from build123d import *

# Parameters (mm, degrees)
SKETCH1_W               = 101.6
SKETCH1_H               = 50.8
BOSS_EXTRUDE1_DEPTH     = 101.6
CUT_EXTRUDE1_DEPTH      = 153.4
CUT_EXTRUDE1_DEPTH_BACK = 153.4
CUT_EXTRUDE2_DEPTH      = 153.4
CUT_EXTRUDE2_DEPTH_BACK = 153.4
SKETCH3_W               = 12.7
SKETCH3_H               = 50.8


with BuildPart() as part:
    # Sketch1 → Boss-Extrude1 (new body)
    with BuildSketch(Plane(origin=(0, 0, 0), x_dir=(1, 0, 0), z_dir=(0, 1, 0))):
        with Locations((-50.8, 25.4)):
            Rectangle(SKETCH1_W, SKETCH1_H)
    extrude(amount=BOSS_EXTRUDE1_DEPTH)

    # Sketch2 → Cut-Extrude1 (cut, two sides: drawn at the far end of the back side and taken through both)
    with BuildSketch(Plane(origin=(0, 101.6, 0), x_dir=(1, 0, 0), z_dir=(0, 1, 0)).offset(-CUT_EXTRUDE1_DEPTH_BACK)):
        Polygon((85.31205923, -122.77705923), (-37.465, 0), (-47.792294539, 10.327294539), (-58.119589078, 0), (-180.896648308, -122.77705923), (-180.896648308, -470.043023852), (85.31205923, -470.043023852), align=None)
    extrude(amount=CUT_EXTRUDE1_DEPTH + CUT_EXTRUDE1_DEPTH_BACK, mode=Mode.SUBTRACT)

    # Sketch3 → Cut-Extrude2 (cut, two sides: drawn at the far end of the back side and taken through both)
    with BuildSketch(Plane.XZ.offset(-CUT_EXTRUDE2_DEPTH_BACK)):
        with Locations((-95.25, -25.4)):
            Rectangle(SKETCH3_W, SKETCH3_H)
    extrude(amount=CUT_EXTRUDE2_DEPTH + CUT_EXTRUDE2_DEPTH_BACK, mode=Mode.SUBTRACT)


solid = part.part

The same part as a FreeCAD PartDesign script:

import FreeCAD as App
import Part
import Sketcher
from FreeCAD import Vector
Q = App.Units.Quantity


def add_polygon(sketch, points):
    """Adds a closed chain of lines whose ends are joined by coincident constraints."""
    first, n = sketch.GeometryCount, len(points)
    for a, b in zip(points, points[1:] + points[:1]):
        sketch.addGeometry(Part.LineSegment(App.Vector(*a, 0), App.Vector(*b, 0)), False)
    for i in range(n):
        sketch.addConstraint(Sketcher.Constraint("Coincident", first + i, 2, first + (i + 1) % n, 1))

doc = App.newDocument("Part")
body = doc.addObject("PartDesign::Body", "Body")

sketch1 = body.newObject("Sketcher::SketchObject", "Sketch")
sketch1.AttachmentSupport = (doc.getObject("XZ_Plane"), [""])
sketch1.MapMode = "FlatFace"
add_polygon(sketch1, [(-102, -51), (-102, 0), (0, 0), (0, -51)])
sketch1.addConstraint([
    Sketcher.Constraint("Vertical", 0),
    Sketcher.Constraint("Horizontal", 1),
    Sketcher.Constraint("Vertical", 2),
    Sketcher.Constraint("Horizontal", 3),
    Sketcher.Constraint("Coincident", 1, 2, -1, 1),
    Sketcher.Constraint("DistanceX", 1, 1, 1, 2, Q("4 in")),
    Sketcher.Constraint("DistanceY", 0, 1, 0, 2, Q("2 in")),
])
pad1 = body.newObject("PartDesign::Pad", "Pad")
pad1.Profile = sketch1
pad1.Length = Q("4 in")
pad1.Reversed = True

sketch2 = body.newObject("Sketcher::SketchObject", "Sketch001")
sketch2.AttachmentSupport = (doc.getObject("XZ_Plane"), [""])
sketch2.MapMode = "FlatFace"
sketch2.AttachmentOffset = App.Placement(Vector(0, 0, -4 * 25.4), App.Rotation())
add_polygon(sketch2, [(85, 123), (-48, -10), (-181, 123), (-181, 470), (85, 470)])
sketch2.addConstraint([
    Sketcher.Constraint("Vertical", 2),
    Sketcher.Constraint("Horizontal", 3),
    Sketcher.Constraint("Vertical", 4),
    Sketcher.Constraint("Perpendicular", 0, 1),
    Sketcher.Constraint("Horizontal", 1, 2, 4, 2),
    Sketcher.Constraint("Equal", 0, 1),
    Sketcher.Constraint("DistanceX", 3, 1, 3, 2, 266.208708),
    Sketcher.Constraint("DistanceY", 2, 1, 2, 2, 347.265965),
    Sketcher.Constraint("DistanceX", 1, 2, -1, 1, 180.896648),
    Sketcher.Constraint("DistanceY", -1, 1, 1, 2, 122.777059),
])
pocket1 = body.newObject("PartDesign::Pocket", "Pocket")
pocket1.Profile = sketch2
pocket1.Type = "ThroughAll"
pocket1.Midplane = True

sketch3 = body.newObject("Sketcher::SketchObject", "Sketch002")
sketch3.AttachmentSupport = (doc.getObject("XZ_Plane"), [""])
sketch3.MapMode = "FlatFace"
add_polygon(sketch3, [(-102, 0), (-102, -51), (-89, -51), (-89, 0)])
sketch3.addConstraint([
    Sketcher.Constraint("Vertical", 0),
    Sketcher.Constraint("Horizontal", 1),
    Sketcher.Constraint("Vertical", 2),
    Sketcher.Constraint("Horizontal", 3),
    Sketcher.Constraint("PointOnObject", 2, 2, -1),
    Sketcher.Constraint("DistanceY", 0, 2, 0, 1, Q("2 in")),
    Sketcher.Constraint("DistanceX", 1, 1, 1, 2, Q("0.5 in")),
    Sketcher.Constraint("DistanceX", 0, 2, -1, 1, Q("4 in")),
])
pocket2 = body.newObject("PartDesign::Pocket", "Pocket001")
pocket2.Profile = sketch3
pocket2.Type = "ThroughAll"
pocket2.Midplane = True

doc.recompute()
